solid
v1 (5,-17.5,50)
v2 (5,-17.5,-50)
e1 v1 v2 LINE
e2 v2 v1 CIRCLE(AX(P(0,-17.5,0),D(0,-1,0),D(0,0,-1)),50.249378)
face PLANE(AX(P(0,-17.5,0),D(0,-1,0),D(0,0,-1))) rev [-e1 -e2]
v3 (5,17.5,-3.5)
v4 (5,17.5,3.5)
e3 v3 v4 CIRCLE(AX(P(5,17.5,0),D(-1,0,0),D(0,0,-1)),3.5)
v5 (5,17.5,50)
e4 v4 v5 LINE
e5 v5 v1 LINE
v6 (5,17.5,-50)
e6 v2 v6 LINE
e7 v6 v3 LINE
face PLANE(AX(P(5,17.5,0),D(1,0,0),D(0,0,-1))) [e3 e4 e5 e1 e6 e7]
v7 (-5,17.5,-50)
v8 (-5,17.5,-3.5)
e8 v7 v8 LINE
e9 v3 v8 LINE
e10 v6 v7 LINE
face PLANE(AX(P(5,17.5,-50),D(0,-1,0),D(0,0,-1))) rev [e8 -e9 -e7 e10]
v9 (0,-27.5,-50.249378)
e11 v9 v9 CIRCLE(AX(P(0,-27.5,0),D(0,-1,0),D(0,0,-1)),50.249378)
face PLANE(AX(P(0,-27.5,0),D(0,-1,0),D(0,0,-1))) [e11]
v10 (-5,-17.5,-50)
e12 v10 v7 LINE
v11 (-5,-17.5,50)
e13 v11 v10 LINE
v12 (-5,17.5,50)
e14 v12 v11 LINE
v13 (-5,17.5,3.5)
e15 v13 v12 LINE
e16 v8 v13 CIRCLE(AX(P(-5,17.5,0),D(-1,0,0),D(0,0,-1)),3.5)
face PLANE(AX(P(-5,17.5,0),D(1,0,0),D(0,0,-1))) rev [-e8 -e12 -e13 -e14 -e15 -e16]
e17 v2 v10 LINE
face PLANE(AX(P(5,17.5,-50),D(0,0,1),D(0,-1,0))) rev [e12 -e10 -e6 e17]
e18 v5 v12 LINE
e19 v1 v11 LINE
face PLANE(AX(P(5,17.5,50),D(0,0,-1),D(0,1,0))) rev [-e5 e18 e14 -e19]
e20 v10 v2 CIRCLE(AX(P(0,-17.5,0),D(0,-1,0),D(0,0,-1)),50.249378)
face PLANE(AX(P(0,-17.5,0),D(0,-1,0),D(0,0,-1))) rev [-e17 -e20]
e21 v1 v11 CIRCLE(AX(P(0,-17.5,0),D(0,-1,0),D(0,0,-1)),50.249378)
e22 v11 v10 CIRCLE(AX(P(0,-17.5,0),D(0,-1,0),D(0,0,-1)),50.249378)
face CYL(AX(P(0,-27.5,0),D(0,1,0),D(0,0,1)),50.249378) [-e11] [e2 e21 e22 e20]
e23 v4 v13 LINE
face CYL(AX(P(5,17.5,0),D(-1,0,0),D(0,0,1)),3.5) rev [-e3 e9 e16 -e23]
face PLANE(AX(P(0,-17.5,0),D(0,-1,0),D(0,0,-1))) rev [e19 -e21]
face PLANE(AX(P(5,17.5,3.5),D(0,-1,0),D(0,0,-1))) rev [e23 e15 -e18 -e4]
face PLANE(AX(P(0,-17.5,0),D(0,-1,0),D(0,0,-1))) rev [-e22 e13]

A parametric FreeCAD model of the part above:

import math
import FreeCAD as App
import Part
import Sketcher

doc = App.newDocument("Part")
body = doc.addObject("PartDesign::Body", "Body")

sketch1 = body.newObject("Sketcher::SketchObject", "Sketch")
sketch1.AttachmentSupport = (doc.getObject("YZ_Plane"), [""])
sketch1.MapMode = "FlatFace"
sketch1.addGeometry(Part.LineSegment(App.Vector(17.5, 3.5, 0), App.Vector(17.5, 50, 0)), False)
sketch1.addGeometry(Part.LineSegment(App.Vector(17.5, 50, 0), App.Vector(-17.5, 50, 0)), False)
sketch1.addGeometry(Part.LineSegment(App.Vector(-17.5, 50, 0), App.Vector(-17.5, -50, 0)), False)
sketch1.addGeometry(Part.LineSegment(App.Vector(-17.5, -50, 0), App.Vector(17.5, -50, 0)), False)
sketch1.addGeometry(Part.LineSegment(App.Vector(17.5, -50, 0), App.Vector(17.5, -3.5, 0)), False)
sketch1.addGeometry(Part.ArcOfCircle(Part.Circle(App.Vector(17.5, 0, 0), App.Vector(0, 0, 1), 3.5), math.radians(90), math.radians(270)), False)
sketch1.addConstraint(Sketcher.Constraint("Coincident", 0, 2, 1, 1))
sketch1.addConstraint(Sketcher.Constraint("Coincident", 1, 2, 2, 1))
sketch1.addConstraint(Sketcher.Constraint("Coincident", 2, 2, 3, 1))
sketch1.addConstraint(Sketcher.Constraint("Coincident", 3, 2, 4, 1))
sketch1.addConstraint(Sketcher.Constraint("Coincident", 4, 2, 5, 2))
sketch1.addConstraint(Sketcher.Constraint("Coincident", 5, 1, 0, 1))
sketch1.addConstraint(Sketcher.Constraint("Vertical", 0))
sketch1.addConstraint(Sketcher.Constraint("Horizontal", 1))
sketch1.addConstraint(Sketcher.Constraint("Vertical", 2))
sketch1.addConstraint(Sketcher.Constraint("Horizontal", 3))
sketch1.addConstraint(Sketcher.Constraint("Vertical", 4))
sketch1.addConstraint(Sketcher.Constraint("Symmetric", 0, 2, 2, 2, -1, 1))
sketch1.addConstraint(Sketcher.Constraint("Symmetric", 4, 2, 5, 1, -1))
sketch1.addConstraint(Sketcher.Constraint("Vertical", 5, 3, 0, 2))
sketch1.addConstraint(Sketcher.Constraint("Radius", 5, 3.5))
sketch1.addConstraint(Sketcher.Constraint("DistanceX", 1, 2, 1, 1, 35.0))
sketch1.addConstraint(Sketcher.Constraint("DistanceY", 2, 2, 2, 1, 100.0))
pad1 = body.newObject("PartDesign::Pad", "Pad")
pad1.Profile = sketch1
pad1.Length = 10
pad1.Midplane = True

sketch2 = body.newObject("Sketcher::SketchObject", "Sketch001")
sketch2.AttachmentSupport = (doc.getObject("XZ_Plane"), [""])
sketch2.MapMode = "FlatFace"
sketch2.AttachmentOffset = App.Placement(App.Vector(0, 0, 17.5), App.Rotation())
sketch2.addGeometry(Part.Circle(App.Vector(0, 0, 0), App.Vector(0, 0, 1), 50.249378), False)
sketch2.addConstraint(Sketcher.Constraint("Coincident", 0, 3, -1, 1))
sketch2.addConstraint(Sketcher.Constraint("Diameter", 0, 100.498756))
pad2 = body.newObject("PartDesign::Pad", "Pad001")
pad2.Profile = sketch2
pad2.Length = 10

doc.recompute()
